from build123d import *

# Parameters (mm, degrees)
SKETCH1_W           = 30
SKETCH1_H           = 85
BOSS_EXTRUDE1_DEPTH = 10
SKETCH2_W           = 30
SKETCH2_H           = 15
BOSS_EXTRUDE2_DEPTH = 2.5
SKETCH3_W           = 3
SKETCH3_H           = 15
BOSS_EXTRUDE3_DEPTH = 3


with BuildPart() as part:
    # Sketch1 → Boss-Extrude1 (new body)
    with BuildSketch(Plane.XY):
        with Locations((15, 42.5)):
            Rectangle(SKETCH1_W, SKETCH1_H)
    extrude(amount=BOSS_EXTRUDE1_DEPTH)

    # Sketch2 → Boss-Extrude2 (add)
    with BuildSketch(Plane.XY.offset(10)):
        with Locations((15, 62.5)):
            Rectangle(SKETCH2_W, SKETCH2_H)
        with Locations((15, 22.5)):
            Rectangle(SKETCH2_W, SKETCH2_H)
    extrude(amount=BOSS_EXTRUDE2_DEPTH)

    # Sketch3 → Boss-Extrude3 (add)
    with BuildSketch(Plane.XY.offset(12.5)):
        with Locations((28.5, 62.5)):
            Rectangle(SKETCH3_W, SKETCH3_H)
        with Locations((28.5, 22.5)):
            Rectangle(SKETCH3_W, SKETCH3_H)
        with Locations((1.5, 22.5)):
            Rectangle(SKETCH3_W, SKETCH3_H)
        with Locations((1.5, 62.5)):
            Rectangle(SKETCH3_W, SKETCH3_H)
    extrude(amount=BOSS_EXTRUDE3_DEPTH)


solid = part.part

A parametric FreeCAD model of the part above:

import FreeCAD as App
import Part
import Sketcher
Q = App.Units.Quantity

doc = App.newDocument("Part")
params = doc.addObject("Spreadsheet::Sheet", "Params")
for row, (alias, value) in enumerate([
    ("sketch1_width", "30 mm"),
    ("sketch1_height", "85 mm"),
    ("pad1_length", "10 mm"),
    ("sketch2_width", "30 mm"),
    ("sketch2_height", "15 mm"),
    ("pad2_length", "2.5 mm"),
    ("sketch3_width", "3 mm"),
    ("sketch3_height", "15 mm"),
    ("pad3_length", "3 mm"),
], start=1):
    params.set(f"A{row}", alias)
    params.set(f"B{row}", "=" + value)
    params.setAlias(f"B{row}", alias)

body = doc.addObject("PartDesign::Body", "Body")

sketch1 = body.newObject("Sketcher::SketchObject", "Sketch")
sketch1.AttachmentSupport = (doc.getObject("XY_Plane"), [""])
sketch1.MapMode = "FlatFace"
sketch1.addGeometry([
    Part.LineSegment(App.Vector(0, 85, 0), App.Vector(0, 0, 0)),
    Part.LineSegment(App.Vector(0, 0, 0), App.Vector(30, 0, 0)),
    Part.LineSegment(App.Vector(30, 0, 0), App.Vector(30, 85, 0)),
    Part.LineSegment(App.Vector(30, 85, 0), App.Vector(0, 85, 0)),
], False)
sketch1.addConstraint([
    Sketcher.Constraint("Coincident", 0, 2, 1, 1),
    Sketcher.Constraint("Coincident", 1, 2, 2, 1),
    Sketcher.Constraint("Coincident", 2, 2, 3, 1),
    Sketcher.Constraint("Coincident", 3, 2, 0, 1),
    Sketcher.Constraint("Vertical", 0),
    Sketcher.Constraint("Horizontal", 1),
    Sketcher.Constraint("Vertical", 2),
    Sketcher.Constraint("Horizontal", 3),
    Sketcher.Constraint("Coincident", 0, 2, -1, 1),
    Sketcher.Constraint("DistanceX", 1, 1, 1, 2, Q("30 mm")),
    Sketcher.Constraint("DistanceY", 0, 2, 0, 1, Q("85 mm")),
])
sketch1.setExpression("Constraints[9]", "Params.sketch1_width")
sketch1.setExpression("Constraints[10]", "Params.sketch1_height")
pad1 = body.newObject("PartDesign::Pad", "Pad")
pad1.Profile = sketch1
pad1.setExpression("Length", "Params.pad1_length")

sketch2 = body.newObject("Sketcher::SketchObject", "Sketch001")
sketch2.AttachmentSupport = (doc.getObject("XY_Plane"), [""])
sketch2.MapMode = "FlatFace"
sketch2.AttachmentOffset = App.Placement(App.Vector(0, 0, 10), App.Rotation())
sketch2.addGeometry([
    Part.LineSegment(App.Vector(0, 70, 0), App.Vector(0, 55, 0)),
    Part.LineSegment(App.Vector(0, 55, 0), App.Vector(30, 55, 0)),
    Part.LineSegment(App.Vector(30, 55, 0), App.Vector(30, 70, 0)),
    Part.LineSegment(App.Vector(30, 70, 0), App.Vector(0, 70, 0)),
    Part.LineSegment(App.Vector(0, 30, 0), App.Vector(0, 15, 0)),
    Part.LineSegment(App.Vector(0, 15, 0), App.Vector(30, 15, 0)),
    Part.LineSegment(App.Vector(30, 15, 0), App.Vector(30, 30, 0)),
    Part.LineSegment(App.Vector(30, 30, 0), App.Vector(0, 30, 0)),
], False)
sketch2.addConstraint([
    Sketcher.Constraint("Coincident", 0, 2, 1, 1),
    Sketcher.Constraint("Coincident", 1, 2, 2, 1),
    Sketcher.Constraint("Coincident", 2, 2, 3, 1),
    Sketcher.Constraint("Coincident", 3, 2, 0, 1),
    Sketcher.Constraint("Coincident", 4, 2, 5, 1),
    Sketcher.Constraint("Coincident", 5, 2, 6, 1),
    Sketcher.Constraint("Coincident", 6, 2, 7, 1),
    Sketcher.Constraint("Coincident", 7, 2, 4, 1),
    Sketcher.Constraint("Vertical", 0),
    Sketcher.Constraint("Horizontal", 1),
    Sketcher.Constraint("Vertical", 2),
    Sketcher.Constraint("Horizontal", 3),
    Sketcher.Constraint("Vertical", 4),
    Sketcher.Constraint("Horizontal", 5),
    Sketcher.Constraint("Vertical", 6),
    Sketcher.Constraint("Horizontal", 7),
    Sketcher.Constraint("PointOnObject", 0, 2, -2),
    Sketcher.Constraint("PointOnObject", 4, 2, -2),
    Sketcher.Constraint("Vertical", 2, 2, 5, 2),
    Sketcher.Constraint("Equal", 2, 4),
    Sketcher.Constraint("DistanceX", 1, 1, 1, 2, Q("30 mm")),
    Sketcher.Constraint("DistanceY", 0, 2, 0, 1, Q("15 mm")),
    Sketcher.Constraint("DistanceY", -1, 1, 0, 2, Q("55 mm")),
    Sketcher.Constraint("DistanceY", -1, 1, 4, 2, Q("15 mm")),
])
sketch2.setExpression("Constraints[20]", "Params.sketch2_width")
sketch2.setExpression("Constraints[21]", "Params.sketch2_height")
pad2 = body.newObject("PartDesign::Pad", "Pad001")
pad2.Profile = sketch2
pad2.setExpression("Length", "Params.pad2_length")

sketch3 = body.newObject("Sketcher::SketchObject", "Sketch002")
sketch3.AttachmentSupport = (doc.getObject("XY_Plane"), [""])
sketch3.MapMode = "FlatFace"
sketch3.AttachmentOffset = App.Placement(App.Vector(0, 0, 12.5), App.Rotation())
sketch3.addGeometry([
    Part.LineSegment(App.Vector(27, 70, 0), App.Vector(27, 55, 0)),
    Part.LineSegment(App.Vector(27, 55, 0), App.Vector(30, 55, 0)),
    Part.LineSegment(App.Vector(30, 55, 0), App.Vector(30, 70, 0)),
    Part.LineSegment(App.Vector(30, 70, 0), App.Vector(27, 70, 0)),
    Part.LineSegment(App.Vector(27, 30, 0), App.Vector(27, 15, 0)),
    Part.LineSegment(App.Vector(27, 15, 0), App.Vector(30, 15, 0)),
    Part.LineSegment(App.Vector(30, 15, 0), App.Vector(30, 30, 0)),
    Part.LineSegment(App.Vector(30, 30, 0), App.Vector(27, 30, 0)),
    Part.LineSegment(App.Vector(0, 30, 0), App.Vector(0, 15, 0)),
    Part.LineSegment(App.Vector(0, 15, 0), App.Vector(3, 15, 0)),
    Part.LineSegment(App.Vector(3, 15, 0), App.Vector(3, 30, 0)),
    Part.LineSegment(App.Vector(3, 30, 0), App.Vector(0, 30, 0)),
    Part.LineSegment(App.Vector(0, 70, 0), App.Vector(0, 55, 0)),
    Part.LineSegment(App.Vector(0, 55, 0), App.Vector(3, 55, 0)),
    Part.LineSegment(App.Vector(3, 55, 0), App.Vector(3, 70, 0)),
    Part.LineSegment(App.Vector(3, 70, 0), App.Vector(0, 70, 0)),
], False)
sketch3.addConstraint([
    Sketcher.Constraint("Coincident", 0, 2, 1, 1),
    Sketcher.Constraint("Coincident", 1, 2, 2, 1),
    Sketcher.Constraint("Coincident", 2, 2, 3, 1),
    Sketcher.Constraint("Coincident", 3, 2, 0, 1),
    Sketcher.Constraint("Coincident", 4, 2, 5, 1),
    Sketcher.Constraint("Coincident", 5, 2, 6, 1),
    Sketcher.Constraint("Coincident", 6, 2, 7, 1),
    Sketcher.Constraint("Coincident", 7, 2, 4, 1),
    Sketcher.Constraint("Coincident", 8, 2, 9, 1),
    Sketcher.Constraint("Coincident", 9, 2, 10, 1),
    Sketcher.Constraint("Coincident", 10, 2, 11, 1),
    Sketcher.Constraint("Coincident", 11, 2, 8, 1),
    Sketcher.Constraint("Coincident", 12, 2, 13, 1),
    Sketcher.Constraint("Coincident", 13, 2, 14, 1),
    Sketcher.Constraint("Coincident", 14, 2, 15, 1),
    Sketcher.Constraint("Coincident", 15, 2, 12, 1),
    Sketcher.Constraint("Vertical", 0),
    Sketcher.Constraint("Horizontal", 1),
    Sketcher.Constraint("Vertical", 2),
    Sketcher.Constraint("Horizontal", 3),
    Sketcher.Constraint("Vertical", 4),
    Sketcher.Constraint("Horizontal", 5),
    Sketcher.Constraint("Vertical", 6),
    Sketcher.Constraint("Horizontal", 7),
    Sketcher.Constraint("Vertical", 8),
    Sketcher.Constraint("Horizontal", 9),
    Sketcher.Constraint("Vertical", 10),
    Sketcher.Constraint("Horizontal", 11),
    Sketcher.Constraint("Vertical", 12),
    Sketcher.Constraint("Horizontal", 13),
    Sketcher.Constraint("Vertical", 14),
    Sketcher.Constraint("Horizontal", 15),
    Sketcher.Constraint("PointOnObject", 8, 2, -2),
    Sketcher.Constraint("PointOnObject", 12, 2, -2),
    Sketcher.Constraint("Horizontal", 5, 2, 8, 2),
    Sketcher.Constraint("Horizontal", 7, 2, 10, 2),
    Sketcher.Constraint("Horizontal", 1, 2, 12, 2),
    Sketcher.Constraint("Horizontal", 3, 2, 14, 2),
    Sketcher.Constraint("Vertical", 3, 2, 4, 2),
    Sketcher.Constraint("Vertical", 2, 2, 5, 2),
    Sketcher.Constraint("Vertical", 10, 2, 13, 2),
    Sketcher.Constraint("Equal", 7, 9),
    Sketcher.Constraint("Equal", 2, 4),
    Sketcher.Constraint("DistanceX", 1, 1, 1, 2, Q("3 mm")),
    Sketcher.Constraint("DistanceY", 0, 2, 0, 1, Q("15 mm")),
    Sketcher.Constraint("DistanceX", -1, 1, 0, 2, Q("27 mm")),
    Sketcher.Constraint("DistanceY", -1, 1, 0, 2, Q("55 mm")),
    Sketcher.Constraint("DistanceY", -1, 1, 4, 2, Q("15 mm")),
])
sketch3.setExpression("Constraints[43]", "Params.sketch3_width")
sketch3.setExpression("Constraints[44]", "Params.sketch3_height")
pad3 = body.newObject("PartDesign::Pad", "Pad002")
pad3.Profile = sketch3
pad3.setExpression("Length", "Params.pad3_length")

doc.recompute()
